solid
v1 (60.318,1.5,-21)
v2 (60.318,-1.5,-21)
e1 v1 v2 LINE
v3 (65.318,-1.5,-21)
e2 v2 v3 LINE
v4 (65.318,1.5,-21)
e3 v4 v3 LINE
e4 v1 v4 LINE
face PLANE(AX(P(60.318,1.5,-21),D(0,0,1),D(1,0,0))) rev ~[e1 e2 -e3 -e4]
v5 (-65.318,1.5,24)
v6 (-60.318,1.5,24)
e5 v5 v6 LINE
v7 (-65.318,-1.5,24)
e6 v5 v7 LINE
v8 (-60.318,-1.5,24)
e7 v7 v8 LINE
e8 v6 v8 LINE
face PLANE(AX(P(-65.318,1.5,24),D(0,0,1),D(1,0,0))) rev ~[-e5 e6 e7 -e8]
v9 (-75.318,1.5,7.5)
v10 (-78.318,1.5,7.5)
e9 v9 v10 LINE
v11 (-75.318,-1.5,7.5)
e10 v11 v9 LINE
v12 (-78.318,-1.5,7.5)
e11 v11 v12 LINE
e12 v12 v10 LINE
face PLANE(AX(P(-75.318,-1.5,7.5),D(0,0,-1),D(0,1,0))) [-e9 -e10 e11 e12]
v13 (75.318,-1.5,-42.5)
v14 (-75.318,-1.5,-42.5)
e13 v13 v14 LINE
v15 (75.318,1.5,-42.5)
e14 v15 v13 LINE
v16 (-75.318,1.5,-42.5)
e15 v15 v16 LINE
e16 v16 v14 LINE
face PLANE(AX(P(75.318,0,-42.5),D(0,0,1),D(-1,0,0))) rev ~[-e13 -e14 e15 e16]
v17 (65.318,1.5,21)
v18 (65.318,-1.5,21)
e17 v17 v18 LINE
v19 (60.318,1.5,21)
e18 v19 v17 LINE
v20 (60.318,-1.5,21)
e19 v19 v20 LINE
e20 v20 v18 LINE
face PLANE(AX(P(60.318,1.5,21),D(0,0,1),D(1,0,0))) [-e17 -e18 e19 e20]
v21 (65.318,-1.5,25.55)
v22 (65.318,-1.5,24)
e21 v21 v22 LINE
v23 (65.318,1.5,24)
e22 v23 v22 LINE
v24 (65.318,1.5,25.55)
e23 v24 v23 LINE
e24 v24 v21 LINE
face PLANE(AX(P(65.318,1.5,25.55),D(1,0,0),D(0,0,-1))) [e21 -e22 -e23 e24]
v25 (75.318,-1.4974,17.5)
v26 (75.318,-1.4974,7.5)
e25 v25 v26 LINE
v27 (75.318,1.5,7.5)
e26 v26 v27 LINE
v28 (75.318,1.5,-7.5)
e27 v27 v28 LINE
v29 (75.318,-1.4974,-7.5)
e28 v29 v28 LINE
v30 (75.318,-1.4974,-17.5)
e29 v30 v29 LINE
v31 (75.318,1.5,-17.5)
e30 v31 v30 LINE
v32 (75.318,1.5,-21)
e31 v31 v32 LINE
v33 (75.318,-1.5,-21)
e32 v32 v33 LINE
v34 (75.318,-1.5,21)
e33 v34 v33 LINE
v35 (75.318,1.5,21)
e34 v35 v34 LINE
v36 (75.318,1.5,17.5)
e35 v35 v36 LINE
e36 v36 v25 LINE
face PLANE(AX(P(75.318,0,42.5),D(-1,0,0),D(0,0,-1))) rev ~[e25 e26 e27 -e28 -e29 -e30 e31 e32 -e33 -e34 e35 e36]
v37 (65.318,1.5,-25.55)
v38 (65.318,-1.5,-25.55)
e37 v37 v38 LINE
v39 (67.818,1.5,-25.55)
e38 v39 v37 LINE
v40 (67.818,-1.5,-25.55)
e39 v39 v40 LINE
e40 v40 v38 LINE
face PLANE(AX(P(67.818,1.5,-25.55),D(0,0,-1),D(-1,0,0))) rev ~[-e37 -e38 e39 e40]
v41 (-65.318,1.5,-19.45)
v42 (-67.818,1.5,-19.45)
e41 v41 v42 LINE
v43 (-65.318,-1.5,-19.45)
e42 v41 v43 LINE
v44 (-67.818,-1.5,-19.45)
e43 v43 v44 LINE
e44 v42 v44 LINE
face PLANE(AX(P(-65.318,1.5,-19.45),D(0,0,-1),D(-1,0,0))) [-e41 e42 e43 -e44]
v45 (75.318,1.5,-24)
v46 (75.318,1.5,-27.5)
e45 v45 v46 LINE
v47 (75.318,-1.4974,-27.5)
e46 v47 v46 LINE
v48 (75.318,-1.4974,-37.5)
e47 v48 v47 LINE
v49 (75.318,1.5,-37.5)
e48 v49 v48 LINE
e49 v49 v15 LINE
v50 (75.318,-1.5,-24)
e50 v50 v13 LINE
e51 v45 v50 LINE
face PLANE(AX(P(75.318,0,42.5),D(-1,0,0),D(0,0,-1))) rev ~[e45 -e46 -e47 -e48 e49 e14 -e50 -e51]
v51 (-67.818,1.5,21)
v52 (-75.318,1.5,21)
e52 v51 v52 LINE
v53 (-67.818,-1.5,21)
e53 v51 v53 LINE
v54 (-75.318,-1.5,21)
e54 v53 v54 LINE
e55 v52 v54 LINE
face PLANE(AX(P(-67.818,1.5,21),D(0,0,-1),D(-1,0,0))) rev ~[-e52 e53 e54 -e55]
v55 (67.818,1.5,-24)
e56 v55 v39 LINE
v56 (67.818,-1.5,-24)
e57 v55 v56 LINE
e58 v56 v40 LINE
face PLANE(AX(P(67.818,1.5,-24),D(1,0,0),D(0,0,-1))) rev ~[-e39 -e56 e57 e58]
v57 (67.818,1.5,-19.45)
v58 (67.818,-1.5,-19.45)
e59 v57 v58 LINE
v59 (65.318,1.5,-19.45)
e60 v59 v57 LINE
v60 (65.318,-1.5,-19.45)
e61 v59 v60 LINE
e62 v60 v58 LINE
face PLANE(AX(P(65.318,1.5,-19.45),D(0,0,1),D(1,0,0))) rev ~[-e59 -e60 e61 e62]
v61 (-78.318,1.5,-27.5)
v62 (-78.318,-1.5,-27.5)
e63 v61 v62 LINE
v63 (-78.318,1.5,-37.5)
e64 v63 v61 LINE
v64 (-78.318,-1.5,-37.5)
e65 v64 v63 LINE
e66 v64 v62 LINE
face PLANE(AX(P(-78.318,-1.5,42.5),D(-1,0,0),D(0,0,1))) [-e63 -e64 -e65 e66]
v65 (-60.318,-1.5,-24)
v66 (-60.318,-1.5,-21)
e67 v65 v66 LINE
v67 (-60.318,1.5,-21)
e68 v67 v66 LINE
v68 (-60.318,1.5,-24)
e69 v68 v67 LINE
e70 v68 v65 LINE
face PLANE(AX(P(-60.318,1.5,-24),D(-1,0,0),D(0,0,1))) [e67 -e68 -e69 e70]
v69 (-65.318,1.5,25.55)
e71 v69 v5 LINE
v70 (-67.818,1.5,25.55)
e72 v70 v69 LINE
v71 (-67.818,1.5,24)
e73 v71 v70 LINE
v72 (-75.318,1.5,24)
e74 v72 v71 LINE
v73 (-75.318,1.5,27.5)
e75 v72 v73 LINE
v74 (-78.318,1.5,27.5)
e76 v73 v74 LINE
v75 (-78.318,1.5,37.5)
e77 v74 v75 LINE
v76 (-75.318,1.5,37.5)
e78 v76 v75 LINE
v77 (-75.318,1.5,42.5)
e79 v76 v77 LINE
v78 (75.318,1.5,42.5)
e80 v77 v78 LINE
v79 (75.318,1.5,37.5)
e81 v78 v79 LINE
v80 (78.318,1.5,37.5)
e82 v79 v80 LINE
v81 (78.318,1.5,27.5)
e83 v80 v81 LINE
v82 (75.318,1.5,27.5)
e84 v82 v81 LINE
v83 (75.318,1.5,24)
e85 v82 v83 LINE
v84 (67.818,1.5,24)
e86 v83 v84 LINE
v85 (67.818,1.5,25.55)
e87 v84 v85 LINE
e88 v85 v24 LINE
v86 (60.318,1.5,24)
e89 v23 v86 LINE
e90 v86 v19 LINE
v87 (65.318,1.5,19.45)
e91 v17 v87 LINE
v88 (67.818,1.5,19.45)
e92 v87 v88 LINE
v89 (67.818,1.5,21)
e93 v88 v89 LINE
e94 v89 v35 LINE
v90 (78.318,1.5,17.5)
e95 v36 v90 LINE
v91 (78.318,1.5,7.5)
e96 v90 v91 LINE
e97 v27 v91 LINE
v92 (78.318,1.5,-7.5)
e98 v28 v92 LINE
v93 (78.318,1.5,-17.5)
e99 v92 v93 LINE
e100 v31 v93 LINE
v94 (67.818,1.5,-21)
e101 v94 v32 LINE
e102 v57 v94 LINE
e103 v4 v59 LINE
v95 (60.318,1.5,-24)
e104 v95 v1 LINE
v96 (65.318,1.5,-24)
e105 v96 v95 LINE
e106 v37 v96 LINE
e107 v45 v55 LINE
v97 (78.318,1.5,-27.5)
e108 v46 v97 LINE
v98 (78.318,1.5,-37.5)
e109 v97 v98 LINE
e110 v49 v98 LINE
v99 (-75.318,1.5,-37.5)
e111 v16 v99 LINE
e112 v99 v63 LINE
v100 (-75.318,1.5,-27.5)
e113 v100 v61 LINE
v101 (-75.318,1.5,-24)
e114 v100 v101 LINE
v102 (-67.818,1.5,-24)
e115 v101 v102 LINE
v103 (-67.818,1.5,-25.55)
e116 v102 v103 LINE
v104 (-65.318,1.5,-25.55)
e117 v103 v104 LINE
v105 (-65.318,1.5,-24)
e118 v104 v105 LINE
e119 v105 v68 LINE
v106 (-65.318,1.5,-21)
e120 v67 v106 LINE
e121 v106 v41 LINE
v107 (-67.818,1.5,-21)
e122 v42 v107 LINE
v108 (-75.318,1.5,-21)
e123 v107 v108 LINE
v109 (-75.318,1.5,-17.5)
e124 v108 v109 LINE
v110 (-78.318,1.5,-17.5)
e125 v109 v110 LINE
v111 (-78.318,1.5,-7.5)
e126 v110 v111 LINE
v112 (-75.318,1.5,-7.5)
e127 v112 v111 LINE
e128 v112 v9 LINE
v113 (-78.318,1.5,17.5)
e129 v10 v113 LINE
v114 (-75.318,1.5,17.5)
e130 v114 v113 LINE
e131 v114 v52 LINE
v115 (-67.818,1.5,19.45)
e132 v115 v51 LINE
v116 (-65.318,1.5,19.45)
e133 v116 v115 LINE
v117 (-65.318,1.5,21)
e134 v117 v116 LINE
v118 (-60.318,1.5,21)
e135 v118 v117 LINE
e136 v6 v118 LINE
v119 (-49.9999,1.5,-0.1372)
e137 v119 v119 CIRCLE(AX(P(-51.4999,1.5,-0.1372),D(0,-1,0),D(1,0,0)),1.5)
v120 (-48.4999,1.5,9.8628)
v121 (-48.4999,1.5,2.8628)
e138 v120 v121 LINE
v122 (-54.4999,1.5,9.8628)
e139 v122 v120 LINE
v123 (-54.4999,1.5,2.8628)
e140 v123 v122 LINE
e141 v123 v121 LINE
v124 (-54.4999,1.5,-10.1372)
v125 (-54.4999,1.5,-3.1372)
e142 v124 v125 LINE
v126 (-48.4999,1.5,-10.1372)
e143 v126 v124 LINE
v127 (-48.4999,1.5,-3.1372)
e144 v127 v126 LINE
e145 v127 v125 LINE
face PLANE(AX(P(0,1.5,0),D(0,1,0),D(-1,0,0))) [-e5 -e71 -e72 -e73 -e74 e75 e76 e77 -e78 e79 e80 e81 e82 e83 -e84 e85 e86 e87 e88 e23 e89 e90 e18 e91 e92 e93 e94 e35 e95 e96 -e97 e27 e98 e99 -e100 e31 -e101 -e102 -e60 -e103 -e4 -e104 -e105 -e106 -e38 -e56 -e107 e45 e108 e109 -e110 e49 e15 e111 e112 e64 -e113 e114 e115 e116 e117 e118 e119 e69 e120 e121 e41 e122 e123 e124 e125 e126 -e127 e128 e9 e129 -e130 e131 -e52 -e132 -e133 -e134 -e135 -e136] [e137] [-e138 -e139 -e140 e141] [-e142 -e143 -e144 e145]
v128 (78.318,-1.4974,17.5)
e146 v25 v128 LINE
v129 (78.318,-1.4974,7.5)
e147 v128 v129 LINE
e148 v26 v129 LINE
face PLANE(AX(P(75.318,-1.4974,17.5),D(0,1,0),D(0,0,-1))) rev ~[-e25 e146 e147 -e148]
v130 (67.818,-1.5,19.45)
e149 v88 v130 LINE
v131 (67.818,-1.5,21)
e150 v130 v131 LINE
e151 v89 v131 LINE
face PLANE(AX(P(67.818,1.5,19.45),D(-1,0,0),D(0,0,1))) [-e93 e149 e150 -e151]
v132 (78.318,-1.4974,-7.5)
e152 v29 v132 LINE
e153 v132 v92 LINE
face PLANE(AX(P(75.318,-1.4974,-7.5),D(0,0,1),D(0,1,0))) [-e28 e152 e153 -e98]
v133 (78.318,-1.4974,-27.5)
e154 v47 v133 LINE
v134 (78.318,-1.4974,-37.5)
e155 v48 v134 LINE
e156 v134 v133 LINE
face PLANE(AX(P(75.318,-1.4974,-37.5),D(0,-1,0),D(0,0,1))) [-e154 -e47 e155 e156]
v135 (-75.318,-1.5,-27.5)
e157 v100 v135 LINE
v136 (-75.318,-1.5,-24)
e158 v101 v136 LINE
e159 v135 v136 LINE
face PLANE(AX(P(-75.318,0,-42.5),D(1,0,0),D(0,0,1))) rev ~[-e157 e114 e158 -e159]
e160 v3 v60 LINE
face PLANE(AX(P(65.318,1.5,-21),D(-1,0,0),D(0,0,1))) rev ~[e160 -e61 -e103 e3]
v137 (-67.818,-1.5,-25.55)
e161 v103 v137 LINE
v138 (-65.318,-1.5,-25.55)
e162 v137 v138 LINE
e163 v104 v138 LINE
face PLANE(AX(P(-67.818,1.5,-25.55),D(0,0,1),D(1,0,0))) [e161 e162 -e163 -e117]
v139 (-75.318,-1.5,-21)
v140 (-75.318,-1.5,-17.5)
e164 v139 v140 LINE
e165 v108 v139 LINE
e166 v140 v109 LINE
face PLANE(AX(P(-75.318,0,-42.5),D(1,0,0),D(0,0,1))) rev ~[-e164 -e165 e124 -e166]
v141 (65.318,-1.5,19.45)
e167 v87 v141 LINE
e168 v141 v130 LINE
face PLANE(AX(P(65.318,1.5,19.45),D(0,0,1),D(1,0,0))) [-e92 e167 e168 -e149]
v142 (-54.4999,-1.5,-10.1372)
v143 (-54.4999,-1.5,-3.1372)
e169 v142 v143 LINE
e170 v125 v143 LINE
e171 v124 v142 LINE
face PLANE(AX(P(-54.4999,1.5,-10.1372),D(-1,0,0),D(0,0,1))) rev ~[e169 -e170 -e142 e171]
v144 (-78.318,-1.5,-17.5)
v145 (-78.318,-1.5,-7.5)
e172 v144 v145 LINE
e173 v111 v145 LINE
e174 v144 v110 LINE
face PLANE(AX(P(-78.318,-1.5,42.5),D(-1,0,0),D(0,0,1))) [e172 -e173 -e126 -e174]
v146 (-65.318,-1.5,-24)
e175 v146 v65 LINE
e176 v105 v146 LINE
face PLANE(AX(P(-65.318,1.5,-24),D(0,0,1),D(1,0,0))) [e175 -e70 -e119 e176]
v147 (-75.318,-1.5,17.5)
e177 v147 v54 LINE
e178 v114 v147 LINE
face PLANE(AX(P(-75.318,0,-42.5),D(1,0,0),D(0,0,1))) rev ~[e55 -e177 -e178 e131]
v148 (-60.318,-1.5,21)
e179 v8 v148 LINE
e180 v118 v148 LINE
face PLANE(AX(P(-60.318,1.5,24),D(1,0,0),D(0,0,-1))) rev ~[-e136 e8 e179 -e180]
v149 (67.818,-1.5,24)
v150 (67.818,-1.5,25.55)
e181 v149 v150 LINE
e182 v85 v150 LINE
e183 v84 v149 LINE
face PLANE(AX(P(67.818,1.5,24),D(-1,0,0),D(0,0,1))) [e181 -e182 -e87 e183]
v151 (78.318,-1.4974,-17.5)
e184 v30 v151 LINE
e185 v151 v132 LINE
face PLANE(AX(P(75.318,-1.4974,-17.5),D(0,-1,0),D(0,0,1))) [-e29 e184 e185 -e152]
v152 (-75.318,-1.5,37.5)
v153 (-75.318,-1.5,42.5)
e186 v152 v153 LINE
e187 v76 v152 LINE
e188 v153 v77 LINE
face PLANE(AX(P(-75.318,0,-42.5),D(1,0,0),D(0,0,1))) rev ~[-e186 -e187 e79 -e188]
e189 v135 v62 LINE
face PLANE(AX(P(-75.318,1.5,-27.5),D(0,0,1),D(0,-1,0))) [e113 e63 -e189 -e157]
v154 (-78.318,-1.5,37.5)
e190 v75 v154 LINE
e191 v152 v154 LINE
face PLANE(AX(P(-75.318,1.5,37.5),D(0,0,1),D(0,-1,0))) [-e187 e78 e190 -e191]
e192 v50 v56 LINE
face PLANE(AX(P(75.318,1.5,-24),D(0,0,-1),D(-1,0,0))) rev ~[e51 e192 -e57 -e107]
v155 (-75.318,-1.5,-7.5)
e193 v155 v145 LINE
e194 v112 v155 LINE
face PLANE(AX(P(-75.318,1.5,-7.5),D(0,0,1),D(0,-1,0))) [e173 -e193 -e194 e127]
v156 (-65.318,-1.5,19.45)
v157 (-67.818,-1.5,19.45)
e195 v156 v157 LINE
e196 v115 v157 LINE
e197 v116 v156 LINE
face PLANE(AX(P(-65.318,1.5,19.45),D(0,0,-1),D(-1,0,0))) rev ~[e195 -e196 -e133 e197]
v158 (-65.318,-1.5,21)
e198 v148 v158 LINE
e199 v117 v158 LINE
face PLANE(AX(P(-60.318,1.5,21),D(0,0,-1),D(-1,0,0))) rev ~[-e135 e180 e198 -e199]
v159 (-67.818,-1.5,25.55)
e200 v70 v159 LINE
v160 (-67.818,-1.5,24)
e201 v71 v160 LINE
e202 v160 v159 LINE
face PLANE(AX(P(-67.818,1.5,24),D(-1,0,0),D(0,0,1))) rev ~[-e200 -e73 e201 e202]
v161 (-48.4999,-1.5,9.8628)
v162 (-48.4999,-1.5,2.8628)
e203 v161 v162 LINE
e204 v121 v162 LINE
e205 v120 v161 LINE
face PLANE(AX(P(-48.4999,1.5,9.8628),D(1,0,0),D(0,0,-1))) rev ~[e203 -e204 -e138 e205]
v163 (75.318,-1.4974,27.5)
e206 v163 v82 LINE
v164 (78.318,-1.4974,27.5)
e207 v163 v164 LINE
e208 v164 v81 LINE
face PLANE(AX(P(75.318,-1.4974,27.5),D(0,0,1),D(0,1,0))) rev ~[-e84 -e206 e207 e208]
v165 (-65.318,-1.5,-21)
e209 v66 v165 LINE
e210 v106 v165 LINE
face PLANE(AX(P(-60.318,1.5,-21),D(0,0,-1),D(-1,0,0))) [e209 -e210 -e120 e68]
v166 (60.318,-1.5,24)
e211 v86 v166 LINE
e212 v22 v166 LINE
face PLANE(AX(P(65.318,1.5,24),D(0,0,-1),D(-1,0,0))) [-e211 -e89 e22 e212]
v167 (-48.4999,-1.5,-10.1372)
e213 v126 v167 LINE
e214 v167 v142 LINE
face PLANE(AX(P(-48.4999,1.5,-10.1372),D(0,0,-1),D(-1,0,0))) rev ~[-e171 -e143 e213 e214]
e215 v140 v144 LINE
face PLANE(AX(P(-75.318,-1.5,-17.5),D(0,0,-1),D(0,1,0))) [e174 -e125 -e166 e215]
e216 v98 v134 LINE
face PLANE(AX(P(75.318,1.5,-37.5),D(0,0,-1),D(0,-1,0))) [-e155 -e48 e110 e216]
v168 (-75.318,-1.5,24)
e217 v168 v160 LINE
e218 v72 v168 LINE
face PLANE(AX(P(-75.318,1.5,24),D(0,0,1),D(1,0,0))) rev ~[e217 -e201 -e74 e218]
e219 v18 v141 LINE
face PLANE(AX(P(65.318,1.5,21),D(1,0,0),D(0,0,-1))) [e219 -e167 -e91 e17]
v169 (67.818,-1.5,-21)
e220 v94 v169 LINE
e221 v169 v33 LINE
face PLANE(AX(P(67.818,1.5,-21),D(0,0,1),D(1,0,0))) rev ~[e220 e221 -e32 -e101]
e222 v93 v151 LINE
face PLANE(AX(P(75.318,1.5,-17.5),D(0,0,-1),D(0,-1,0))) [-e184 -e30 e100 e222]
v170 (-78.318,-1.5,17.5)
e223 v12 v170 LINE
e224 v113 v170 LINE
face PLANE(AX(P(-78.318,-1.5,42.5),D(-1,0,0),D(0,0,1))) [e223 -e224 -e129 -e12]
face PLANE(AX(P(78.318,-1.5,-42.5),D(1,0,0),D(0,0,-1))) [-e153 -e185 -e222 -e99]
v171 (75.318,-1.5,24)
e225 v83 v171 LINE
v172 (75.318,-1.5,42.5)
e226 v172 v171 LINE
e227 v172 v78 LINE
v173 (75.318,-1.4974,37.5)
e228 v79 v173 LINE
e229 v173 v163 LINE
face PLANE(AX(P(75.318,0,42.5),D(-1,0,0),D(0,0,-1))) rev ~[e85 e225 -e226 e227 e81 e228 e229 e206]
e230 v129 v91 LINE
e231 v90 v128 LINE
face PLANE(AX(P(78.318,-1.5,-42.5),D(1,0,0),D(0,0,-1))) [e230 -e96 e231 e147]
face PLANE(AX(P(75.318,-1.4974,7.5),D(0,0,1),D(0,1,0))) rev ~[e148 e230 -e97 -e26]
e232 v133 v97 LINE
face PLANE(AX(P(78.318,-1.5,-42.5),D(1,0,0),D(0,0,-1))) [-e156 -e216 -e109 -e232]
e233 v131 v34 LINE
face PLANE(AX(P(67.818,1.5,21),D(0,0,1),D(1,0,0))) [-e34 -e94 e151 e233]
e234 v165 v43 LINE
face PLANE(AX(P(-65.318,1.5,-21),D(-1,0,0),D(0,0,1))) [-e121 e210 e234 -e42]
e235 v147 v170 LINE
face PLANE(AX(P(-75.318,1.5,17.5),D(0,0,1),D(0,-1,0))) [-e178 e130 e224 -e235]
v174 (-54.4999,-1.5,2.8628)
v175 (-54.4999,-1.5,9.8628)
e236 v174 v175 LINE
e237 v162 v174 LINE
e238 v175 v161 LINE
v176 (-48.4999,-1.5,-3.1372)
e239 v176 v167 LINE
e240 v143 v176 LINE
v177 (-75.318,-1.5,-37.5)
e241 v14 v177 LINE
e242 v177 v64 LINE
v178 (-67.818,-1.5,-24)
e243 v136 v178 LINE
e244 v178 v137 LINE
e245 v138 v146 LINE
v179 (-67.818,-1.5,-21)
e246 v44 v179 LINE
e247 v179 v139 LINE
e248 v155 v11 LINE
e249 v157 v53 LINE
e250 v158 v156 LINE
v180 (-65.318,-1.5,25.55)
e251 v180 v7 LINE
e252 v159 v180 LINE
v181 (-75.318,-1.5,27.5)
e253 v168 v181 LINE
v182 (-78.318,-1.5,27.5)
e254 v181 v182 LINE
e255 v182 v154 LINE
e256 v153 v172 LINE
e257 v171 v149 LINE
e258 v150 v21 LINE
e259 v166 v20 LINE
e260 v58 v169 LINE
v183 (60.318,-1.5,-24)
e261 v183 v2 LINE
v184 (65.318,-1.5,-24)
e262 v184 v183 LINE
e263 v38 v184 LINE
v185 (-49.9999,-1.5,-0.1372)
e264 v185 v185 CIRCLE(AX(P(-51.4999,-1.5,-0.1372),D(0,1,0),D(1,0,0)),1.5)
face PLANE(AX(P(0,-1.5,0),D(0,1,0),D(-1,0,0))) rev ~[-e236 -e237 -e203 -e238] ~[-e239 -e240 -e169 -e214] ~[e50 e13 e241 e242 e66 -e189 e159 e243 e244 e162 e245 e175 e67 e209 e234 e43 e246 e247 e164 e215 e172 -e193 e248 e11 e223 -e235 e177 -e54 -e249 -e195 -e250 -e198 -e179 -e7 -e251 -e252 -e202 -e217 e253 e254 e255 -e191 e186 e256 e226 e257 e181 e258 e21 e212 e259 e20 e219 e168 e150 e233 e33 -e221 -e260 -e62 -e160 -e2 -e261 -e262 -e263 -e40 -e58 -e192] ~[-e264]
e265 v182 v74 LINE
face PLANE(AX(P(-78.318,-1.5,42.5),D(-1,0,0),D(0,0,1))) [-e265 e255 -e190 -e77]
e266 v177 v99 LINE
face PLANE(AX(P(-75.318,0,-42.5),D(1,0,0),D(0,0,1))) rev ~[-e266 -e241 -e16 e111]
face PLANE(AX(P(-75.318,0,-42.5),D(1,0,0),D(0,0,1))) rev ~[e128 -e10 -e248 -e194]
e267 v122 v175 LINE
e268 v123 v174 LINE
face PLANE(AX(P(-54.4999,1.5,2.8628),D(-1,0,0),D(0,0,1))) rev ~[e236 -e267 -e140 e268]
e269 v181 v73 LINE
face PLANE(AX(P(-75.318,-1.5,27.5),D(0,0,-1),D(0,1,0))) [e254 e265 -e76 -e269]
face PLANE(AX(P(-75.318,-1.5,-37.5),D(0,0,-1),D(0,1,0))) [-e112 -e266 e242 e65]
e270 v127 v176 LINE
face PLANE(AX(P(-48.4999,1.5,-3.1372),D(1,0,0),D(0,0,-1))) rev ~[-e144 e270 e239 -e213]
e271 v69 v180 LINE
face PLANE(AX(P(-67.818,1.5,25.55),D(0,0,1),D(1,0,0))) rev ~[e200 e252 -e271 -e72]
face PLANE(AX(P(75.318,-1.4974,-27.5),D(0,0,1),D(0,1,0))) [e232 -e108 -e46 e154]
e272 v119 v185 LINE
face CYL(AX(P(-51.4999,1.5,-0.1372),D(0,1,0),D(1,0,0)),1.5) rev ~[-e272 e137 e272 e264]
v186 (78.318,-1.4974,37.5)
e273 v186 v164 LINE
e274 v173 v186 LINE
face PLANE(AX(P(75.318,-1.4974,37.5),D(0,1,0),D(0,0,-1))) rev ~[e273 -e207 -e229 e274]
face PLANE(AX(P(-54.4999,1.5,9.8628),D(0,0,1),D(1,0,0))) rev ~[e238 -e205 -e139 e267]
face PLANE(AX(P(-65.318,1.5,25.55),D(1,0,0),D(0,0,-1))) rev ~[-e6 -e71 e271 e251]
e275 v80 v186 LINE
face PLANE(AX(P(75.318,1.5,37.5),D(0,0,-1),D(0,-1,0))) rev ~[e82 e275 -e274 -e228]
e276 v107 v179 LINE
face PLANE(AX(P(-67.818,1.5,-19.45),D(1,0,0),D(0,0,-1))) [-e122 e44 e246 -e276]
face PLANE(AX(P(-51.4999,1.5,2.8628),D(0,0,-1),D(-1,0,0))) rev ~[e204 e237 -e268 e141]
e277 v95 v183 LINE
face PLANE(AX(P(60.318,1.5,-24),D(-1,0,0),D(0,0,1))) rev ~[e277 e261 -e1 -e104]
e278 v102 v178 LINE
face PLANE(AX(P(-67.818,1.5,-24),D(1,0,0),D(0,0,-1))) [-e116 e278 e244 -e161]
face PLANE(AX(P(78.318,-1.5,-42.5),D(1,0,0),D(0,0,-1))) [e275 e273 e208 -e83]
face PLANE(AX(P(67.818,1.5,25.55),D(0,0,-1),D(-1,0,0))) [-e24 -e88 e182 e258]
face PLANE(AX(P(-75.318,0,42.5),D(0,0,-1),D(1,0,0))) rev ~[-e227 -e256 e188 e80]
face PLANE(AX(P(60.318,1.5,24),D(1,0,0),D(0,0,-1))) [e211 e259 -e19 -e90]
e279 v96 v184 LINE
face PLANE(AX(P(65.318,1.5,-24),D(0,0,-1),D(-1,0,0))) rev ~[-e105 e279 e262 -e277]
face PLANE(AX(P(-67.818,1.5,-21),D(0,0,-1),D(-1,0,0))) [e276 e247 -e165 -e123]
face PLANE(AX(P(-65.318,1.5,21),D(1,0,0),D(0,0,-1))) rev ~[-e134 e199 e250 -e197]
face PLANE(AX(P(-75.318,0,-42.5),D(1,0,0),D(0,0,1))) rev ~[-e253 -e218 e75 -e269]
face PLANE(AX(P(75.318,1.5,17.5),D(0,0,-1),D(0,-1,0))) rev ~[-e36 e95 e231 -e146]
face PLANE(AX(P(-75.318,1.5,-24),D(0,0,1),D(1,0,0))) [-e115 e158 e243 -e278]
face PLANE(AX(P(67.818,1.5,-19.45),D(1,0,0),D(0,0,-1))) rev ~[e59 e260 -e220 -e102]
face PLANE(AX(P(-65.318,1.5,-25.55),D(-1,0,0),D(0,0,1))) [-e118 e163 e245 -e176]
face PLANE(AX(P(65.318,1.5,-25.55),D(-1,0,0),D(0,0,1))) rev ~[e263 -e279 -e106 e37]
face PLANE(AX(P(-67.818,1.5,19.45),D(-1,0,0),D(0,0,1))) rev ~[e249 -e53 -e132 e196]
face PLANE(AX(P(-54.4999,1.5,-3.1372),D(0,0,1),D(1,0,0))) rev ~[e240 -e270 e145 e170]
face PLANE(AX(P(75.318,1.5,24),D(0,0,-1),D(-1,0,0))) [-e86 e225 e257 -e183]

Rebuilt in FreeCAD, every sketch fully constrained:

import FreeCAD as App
import Part
import Sketcher
Q = App.Units.Quantity

doc = App.newDocument("Part")
body = doc.addObject("PartDesign::Body", "Body")

# Sketch on XZ plane
sketch1 = body.newObject("Sketcher::SketchObject", "Sketch")
sketch1.AttachmentSupport = (doc.getObject("XZ_Plane"), [""])
sketch1.MapMode = "FlatFace"
sketch1.addGeometry([
    Part.LineSegment(App.Vector(-75.318, -42.5, 0), App.Vector(-75.318, 42.5, 0)),
    Part.LineSegment(App.Vector(-75.318, 42.5, 0), App.Vector(75.318, 42.5, 0)),
    Part.LineSegment(App.Vector(75.318, 42.5, 0), App.Vector(75.318, -42.5, 0)),
    Part.LineSegment(App.Vector(75.318, -42.5, 0), App.Vector(-75.318, -42.5, 0)),
], False)
sketch1.addConstraint([
    Sketcher.Constraint("Coincident", 0, 2, 1, 1),
    Sketcher.Constraint("Coincident", 1, 2, 2, 1),
    Sketcher.Constraint("Coincident", 2, 2, 3, 1),
    Sketcher.Constraint("Coincident", 3, 2, 0, 1),
    Sketcher.Constraint("Vertical", 0),
    Sketcher.Constraint("Horizontal", 1),
    Sketcher.Constraint("Vertical", 2),
    Sketcher.Constraint("Horizontal", 3),
    Sketcher.Constraint("Symmetric", 0, 2, 2, 2, -1, 1),
    Sketcher.Constraint("DistanceY", 0, 1, 0, 2, Q("85 mm")),
    Sketcher.Constraint("DistanceX", 1, 1, 1, 2, Q("150.636 mm")),
])
pad1 = body.newObject("PartDesign::Pad", "Pad")
pad1.Profile = sketch1
pad1.Length = 3
pad1.Midplane = True

# Sketch on YZ plane
sketch2 = body.newObject("Sketcher::SketchObject", "Sketch001")
sketch2.AttachmentSupport = (doc.getObject("YZ_Plane"), [""])
sketch2.MapMode = "FlatFace"
sketch2.AttachmentOffset = App.Placement(App.Vector(0, 0, -75.318), App.Rotation())
sketch2.addGeometry([
    Part.LineSegment(App.Vector(1.5, -37.5, 0), App.Vector(-1.5, -37.5, 0)),  # 0
    Part.LineSegment(App.Vector(-1.5, -37.5, 0), App.Vector(-1.5, -27.5, 0)),  # 1
    Part.LineSegment(App.Vector(-1.5, -27.5, 0), App.Vector(1.5, -27.5, 0)),  # 2
    Part.LineSegment(App.Vector(1.5, -27.5, 0), App.Vector(1.5, -37.5, 0)),  # 3
    Part.LineSegment(App.Vector(1.5, 27.5, 0), App.Vector(-1.5, 27.5, 0)),  # 4
    Part.LineSegment(App.Vector(-1.5, 27.5, 0), App.Vector(-1.5, 37.5, 0)),  # 5
    Part.LineSegment(App.Vector(-1.5, 37.5, 0), App.Vector(1.5, 37.5, 0)),  # 6
    Part.LineSegment(App.Vector(1.5, 37.5, 0), App.Vector(1.5, 27.5, 0)),  # 7
    Part.LineSegment(App.Vector(1.5, 7.5, 0), App.Vector(-1.5, 7.5, 0)),  # 8
    Part.LineSegment(App.Vector(-1.5, 7.5, 0), App.Vector(-1.5, 17.5, 0)),  # 9
    Part.LineSegment(App.Vector(-1.5, 17.5, 0), App.Vector(1.5, 17.5, 0)),  # 10
    Part.LineSegment(App.Vector(1.5, 17.5, 0), App.Vector(1.5, 7.5, 0)),  # 11
    Part.LineSegment(App.Vector(1.5, -17.5, 0), App.Vector(-1.5, -17.5, 0)),  # 12
    Part.LineSegment(App.Vector(-1.5, -17.5, 0), App.Vector(-1.5, -7.5, 0)),  # 13
    Part.LineSegment(App.Vector(-1.5, -7.5, 0), App.Vector(1.5, -7.5, 0)),  # 14
    Part.LineSegment(App.Vector(1.5, -7.5, 0), App.Vector(1.5, -17.5, 0)),  # 15
], False)
sketch2.addConstraint([
    Sketcher.Constraint("Coincident", 0, 2, 1, 1),
    Sketcher.Constraint("Coincident", 1, 2, 2, 1),
    Sketcher.Constraint("Coincident", 2, 2, 3, 1),
    Sketcher.Constraint("Coincident", 3, 2, 0, 1),
    Sketcher.Constraint("Coincident", 4, 2, 5, 1),
    Sketcher.Constraint("Coincident", 5, 2, 6, 1),
    Sketcher.Constraint("Coincident", 6, 2, 7, 1),
    Sketcher.Constraint("Coincident", 7, 2, 4, 1),
    Sketcher.Constraint("Coincident", 8, 2, 9, 1),
    Sketcher.Constraint("Coincident", 9, 2, 10, 1),
    Sketcher.Constraint("Coincident", 10, 2, 11, 1),
    Sketcher.Constraint("Coincident", 11, 2, 8, 1),
    Sketcher.Constraint("Coincident", 12, 2, 13, 1),
    Sketcher.Constraint("Coincident", 13, 2, 14, 1),
    Sketcher.Constraint("Coincident", 14, 2, 15, 1),
    Sketcher.Constraint("Coincident", 15, 2, 12, 1),
    Sketcher.Constraint("Horizontal", 0),
    Sketcher.Constraint("Vertical", 1),
    Sketcher.Constraint("Horizontal", 2),
    Sketcher.Constraint("Vertical", 3),
    Sketcher.Constraint("Horizontal", 4),
    Sketcher.Constraint("Vertical", 5),
    Sketcher.Constraint("Horizontal", 6),
    Sketcher.Constraint("Vertical", 7),
    Sketcher.Constraint("Horizontal", 8),
    Sketcher.Constraint("Vertical", 9),
    Sketcher.Constraint("Horizontal", 10),
    Sketcher.Constraint("Vertical", 11),
    Sketcher.Constraint("Horizontal", 12),
    Sketcher.Constraint("Vertical", 13),
    Sketcher.Constraint("Horizontal", 14),
    Sketcher.Constraint("Vertical", 15),
    Sketcher.Constraint("Symmetric", 2, 2, 4, 2, -1, 1),
    Sketcher.Constraint("Symmetric", 0, 2, 6, 2, -1, 1),
    Sketcher.Constraint("Symmetric", 10, 2, 12, 2, -1, 1),
    Sketcher.Constraint("Symmetric", 8, 2, 14, 2, -1, 1),
    Sketcher.Constraint("Vertical", 1, 2, 4, 2),
    Sketcher.Constraint("Vertical", 5, 2, 8, 2),
    Sketcher.Constraint("Vertical", 7, 2, 10, 2),
    Sketcher.Constraint("Equal", 7, 9),
    Sketcher.Constraint("DistanceX", 0, 2, 0, 1, Q("3 mm")),
    Sketcher.Constraint("DistanceY", 1, 1, 1, 2, Q("10 mm")),
    Sketcher.Constraint("DistanceY", 9, 2, 4, 2, Q("10 mm")),
    Sketcher.Constraint("DistanceY", 1, 2, 4, 2, Q("55 mm")),
])
pad2 = body.newObject("PartDesign::Pad", "Pad001")
pad2.Profile = sketch2
pad2.Length = 3
pad2.Reversed = True

# Sketch on YZ plane
sketch3 = body.newObject("Sketcher::SketchObject", "Sketch002")
sketch3.AttachmentSupport = (doc.getObject("YZ_Plane"), [""])
sketch3.MapMode = "FlatFace"
sketch3.AttachmentOffset = App.Placement(App.Vector(0, 0, 75.318), App.Rotation())
sketch3.addGeometry([
    Part.LineSegment(App.Vector(1.5, -37.5, 0), App.Vector(1.5, -27.5, 0)),  # 0
    Part.LineSegment(App.Vector(1.5, -27.5, 0), App.Vector(-1.4974, -27.5, 0)),  # 1
    Part.LineSegment(App.Vector(-1.4974, -27.5, 0), App.Vector(-1.4974, -37.5, 0)),  # 2
    Part.LineSegment(App.Vector(-1.4974, -37.5, 0), App.Vector(1.5, -37.5, 0)),  # 3
    Part.LineSegment(App.Vector(1.5, -17.5, 0), App.Vector(1.5, -7.5, 0)),  # 4
    Part.LineSegment(App.Vector(1.5, -7.5, 0), App.Vector(-1.4974, -7.5, 0)),  # 5
    Part.LineSegment(App.Vector(-1.4974, -7.5, 0), App.Vector(-1.4974, -17.5, 0)),  # 6
    Part.LineSegment(App.Vector(-1.4974, -17.5, 0), App.Vector(1.5, -17.5, 0)),  # 7
    Part.LineSegment(App.Vector(1.5, 7.5, 0), App.Vector(1.5, 17.5, 0)),  # 8
    Part.LineSegment(App.Vector(1.5, 17.5, 0), App.Vector(-1.4974, 17.5, 0)),  # 9
    Part.LineSegment(App.Vector(-1.4974, 17.5, 0), App.Vector(-1.4974, 7.5, 0)),  # 10
    Part.LineSegment(App.Vector(-1.4974, 7.5, 0), App.Vector(1.5, 7.5, 0)),  # 11
    Part.LineSegment(App.Vector(1.5, 27.5, 0), App.Vector(1.5, 37.5, 0)),  # 12
    Part.LineSegment(App.Vector(1.5, 37.5, 0), App.Vector(-1.4974, 37.5, 0)),  # 13
    Part.LineSegment(App.Vector(-1.4974, 37.5, 0), App.Vector(-1.4974, 27.5, 0)),  # 14
    Part.LineSegment(App.Vector(-1.4974, 27.5, 0), App.Vector(1.5, 27.5, 0)),  # 15
], False)
sketch3.addConstraint([
    Sketcher.Constraint("Coincident", 0, 2, 1, 1),
    Sketcher.Constraint("Coincident", 1, 2, 2, 1),
    Sketcher.Constraint("Coincident", 2, 2, 3, 1),
    Sketcher.Constraint("Coincident", 3, 2, 0, 1),
    Sketcher.Constraint("Coincident", 4, 2, 5, 1),
    Sketcher.Constraint("Coincident", 5, 2, 6, 1),
    Sketcher.Constraint("Coincident", 6, 2, 7, 1),
    Sketcher.Constraint("Coincident", 7, 2, 4, 1),
    Sketcher.Constraint("Coincident", 8, 2, 9, 1),
    Sketcher.Constraint("Coincident", 9, 2, 10, 1),
    Sketcher.Constraint("Coincident", 10, 2, 11, 1),
    Sketcher.Constraint("Coincident", 11, 2, 8, 1),
    Sketcher.Constraint("Coincident", 12, 2, 13, 1),
    Sketcher.Constraint("Coincident", 13, 2, 14, 1),
    Sketcher.Constraint("Coincident", 14, 2, 15, 1),
    Sketcher.Constraint("Coincident", 15, 2, 12, 1),
    Sketcher.Constraint("Vertical", 0),
    Sketcher.Constraint("Horizontal", 1),
    Sketcher.Constraint("Vertical", 2),
    Sketcher.Constraint("Horizontal", 3),
    Sketcher.Constraint("Vertical", 4),
    Sketcher.Constraint("Horizontal", 5),
    Sketcher.Constraint("Vertical", 6),
    Sketcher.Constraint("Horizontal", 7),
    Sketcher.Constraint("Vertical", 8),
    Sketcher.Constraint("Horizontal", 9),
    Sketcher.Constraint("Vertical", 10),
    Sketcher.Constraint("Horizontal", 11),
    Sketcher.Constraint("Vertical", 12),
    Sketcher.Constraint("Horizontal", 13),
    Sketcher.Constraint("Vertical", 14),
    Sketcher.Constraint("Horizontal", 15),
    Sketcher.Constraint("Symmetric", 7, 2, 8, 2, -1),
    Sketcher.Constraint("Symmetric", 5, 2, 10, 2, -1),
    Sketcher.Constraint("Symmetric", 3, 2, 12, 2, -1),
    Sketcher.Constraint("Symmetric", 1, 2, 14, 2, -1),
    Sketcher.Constraint("Vertical", 3, 2, 4, 2),
    Sketcher.Constraint("Vertical", 2, 2, 5, 2),
    Sketcher.Constraint("Equal", 2, 4),
    Sketcher.Constraint("DistanceY", 0, 1, 0, 2, Q("10 mm")),
    Sketcher.Constraint("DistanceY", 0, 2, 4, 2, Q("20 mm")),
    Sketcher.Constraint("DistanceY", 4, 2, 8, 2, Q("25 mm")),
    Sketcher.Constraint("DistanceX", -1, 1, 0, 2, Q("1.5 mm")),
    Sketcher.Constraint("DistanceX", 1, 2, 1, 1, Q("2.9974 mm")),
])
pad3 = body.newObject("PartDesign::Pad", "Pad002")
pad3.Profile = sketch3
pad3.Length = 3

# Sketch on XZ plane
sketch4 = body.newObject("Sketcher::SketchObject", "Sketch003")
sketch4.AttachmentSupport = (doc.getObject("XZ_Plane"), [""])
sketch4.MapMode = "FlatFace"
sketch4.AttachmentOffset = App.Placement(App.Vector(0, 0, -1.5), App.Rotation())
sketch4.addGeometry([
    Part.LineSegment(App.Vector(-48.4999, 2.8628, 0), App.Vector(-54.4999, 2.8628, 0)),  # 0
    Part.LineSegment(App.Vector(-54.4999, 2.8628, 0), App.Vector(-54.4999, 9.8628, 0)),  # 1
    Part.LineSegment(App.Vector(-54.4999, 9.8628, 0), App.Vector(-48.4999, 9.8628, 0)),  # 2
    Part.LineSegment(App.Vector(-48.4999, 9.8628, 0), App.Vector(-48.4999, 2.8628, 0)),  # 3
    Part.LineSegment(App.Vector(-54.4999, -3.1372, 0), App.Vector(-48.4999, -3.1372, 0)),  # 4
    Part.LineSegment(App.Vector(-48.4999, -3.1372, 0), App.Vector(-48.4999, -10.1372, 0)),  # 5
    Part.LineSegment(App.Vector(-48.4999, -10.1372, 0), App.Vector(-54.4999, -10.1372, 0)),  # 6
    Part.LineSegment(App.Vector(-54.4999, -10.1372, 0), App.Vector(-54.4999, -3.1372, 0)),  # 7
    Part.Circle(App.Vector(-51.4999, -0.1372, 0), App.Vector(0, 0, 1), 1.5),  # 8
], False)
sketch4.addConstraint([
    Sketcher.Constraint("Coincident", 0, 2, 1, 1),
    Sketcher.Constraint("Coincident", 1, 2, 2, 1),
    Sketcher.Constraint("Coincident", 2, 2, 3, 1),
    Sketcher.Constraint("Coincident", 3, 2, 0, 1),
    Sketcher.Constraint("Coincident", 4, 2, 5, 1),
    Sketcher.Constraint("Coincident", 5, 2, 6, 1),
    Sketcher.Constraint("Coincident", 6, 2, 7, 1),
    Sketcher.Constraint("Coincident", 7, 2, 4, 1),
    Sketcher.Constraint("Horizontal", 0),
    Sketcher.Constraint("Vertical", 1),
    Sketcher.Constraint("Horizontal", 2),
    Sketcher.Constraint("Vertical", 3),
    Sketcher.Constraint("Horizontal", 4),
    Sketcher.Constraint("Vertical", 5),
    Sketcher.Constraint("Horizontal", 6),
    Sketcher.Constraint("Vertical", 7),
    Sketcher.Constraint("Vertical", 3, 2, 4, 2),
    Sketcher.Constraint("Vertical", 1, 2, 6, 2),
    Sketcher.Constraint("Equal", 3, 5),
    Sketcher.Constraint("Diameter", 8, Q("3 mm")),
    Sketcher.Constraint("DistanceX", 0, 2, 8, 3, Q("3 mm")),
    Sketcher.Constraint("DistanceY", 8, 3, 0, 2, Q("3 mm")),
    Sketcher.Constraint("DistanceX", 8, 3, 2, 2, Q("3 mm")),
    Sketcher.Constraint("DistanceY", 4, 2, 8, 3, Q("3 mm")),
    Sketcher.Constraint("DistanceY", 1, 1, 1, 2, Q("7 mm")),
    Sketcher.Constraint("DistanceX", 8, 3, -1, 1, Q("51.5 mm")),
    Sketcher.Constraint("DistanceY", 8, 3, -1, 1, Q("0.1372 mm")),
])
pocket1 = body.newObject("PartDesign::Pocket", "Pocket")
pocket1.Profile = sketch4
pocket1.Length = 3
pocket1.Reversed = True

# Sketch on XZ plane
sketch5 = body.newObject("Sketcher::SketchObject", "Sketch004")
sketch5.AttachmentSupport = (doc.getObject("XZ_Plane"), [""])
sketch5.MapMode = "FlatFace"
sketch5.AttachmentOffset = App.Placement(App.Vector(0, 0, -1.5), App.Rotation())
sketch5.addGeometry([
    Part.LineSegment(App.Vector(67.818, 24, 0), App.Vector(75.318, 24, 0)),  # 0
    Part.LineSegment(App.Vector(75.318, 24, 0), App.Vector(75.318, 21, 0)),  # 1
    Part.LineSegment(App.Vector(75.318, 21, 0), App.Vector(67.818, 21, 0)),  # 2
    Part.LineSegment(App.Vector(67.818, 21, 0), App.Vector(67.818, 19.45, 0)),  # 3
    Part.LineSegment(App.Vector(67.818, 19.45, 0), App.Vector(65.318, 19.45, 0)),  # 4
    Part.LineSegment(App.Vector(65.318, 19.45, 0), App.Vector(65.318, 21, 0)),  # 5
    Part.LineSegment(App.Vector(65.318, 21, 0), App.Vector(60.318, 21, 0)),  # 6
    Part.LineSegment(App.Vector(60.318, 21, 0), App.Vector(60.318, 24, 0)),  # 7
    Part.LineSegment(App.Vector(60.318, 24, 0), App.Vector(65.318, 24, 0)),  # 8
    Part.LineSegment(App.Vector(65.318, 24, 0), App.Vector(65.318, 25.55, 0)),  # 9
    Part.LineSegment(App.Vector(65.318, 25.55, 0), App.Vector(67.818, 25.55, 0)),  # 10
    Part.LineSegment(App.Vector(67.818, 25.55, 0), App.Vector(67.818, 24, 0)),  # 11
    Part.LineSegment(App.Vector(75.318, -21, 0), App.Vector(75.318, -24, 0)),  # 12
    Part.LineSegment(App.Vector(75.318, -24, 0), App.Vector(67.818, -24, 0)),  # 13
    Part.LineSegment(App.Vector(67.818, -24, 0), App.Vector(67.818, -25.55, 0)),  # 14
    Part.LineSegment(App.Vector(67.818, -25.55, 0), App.Vector(65.318, -25.55, 0)),  # 15
    Part.LineSegment(App.Vector(65.318, -25.55, 0), App.Vector(65.318, -24, 0)),  # 16
    Part.LineSegment(App.Vector(65.318, -24, 0), App.Vector(60.318, -24, 0)),  # 17
    Part.LineSegment(App.Vector(60.318, -24, 0), App.Vector(60.318, -21, 0)),  # 18
    Part.LineSegment(App.Vector(60.318, -21, 0), App.Vector(65.318, -21, 0)),  # 19
    Part.LineSegment(App.Vector(65.318, -21, 0), App.Vector(65.318, -19.45, 0)),  # 20
    Part.LineSegment(App.Vector(65.318, -19.45, 0), App.Vector(67.818, -19.45, 0)),  # 21
    Part.LineSegment(App.Vector(67.818, -19.45, 0), App.Vector(67.818, -21, 0)),  # 22
    Part.LineSegment(App.Vector(67.818, -21, 0), App.Vector(75.318, -21, 0)),  # 23
    Part.LineSegment(App.Vector(-75.318, 21, 0), App.Vector(-75.318, 24, 0)),  # 24
    Part.LineSegment(App.Vector(-75.318, 24, 0), App.Vector(-67.818, 24, 0)),  # 25
    Part.LineSegment(App.Vector(-67.818, 24, 0), App.Vector(-67.818, 25.55, 0)),  # 26
    Part.LineSegment(App.Vector(-67.818, 25.55, 0), App.Vector(-65.318, 25.55, 0)),  # 27
    Part.LineSegment(App.Vector(-65.318, 25.55, 0), App.Vector(-65.318, 24, 0)),  # 28
    Part.LineSegment(App.Vector(-65.318, 24, 0), App.Vector(-60.318, 24, 0)),  # 29
    Part.LineSegment(App.Vector(-60.318, 24, 0), App.Vector(-60.318, 21, 0)),  # 30
    Part.LineSegment(App.Vector(-60.318, 21, 0), App.Vector(-65.318, 21, 0)),  # 31
    Part.LineSegment(App.Vector(-65.318, 21, 0), App.Vector(-65.318, 19.45, 0)),  # 32
    Part.LineSegment(App.Vector(-65.318, 19.45, 0), App.Vector(-67.818, 19.45, 0)),  # 33
    Part.LineSegment(App.Vector(-67.818, 19.45, 0), App.Vector(-67.818, 21, 0)),  # 34
    Part.LineSegment(App.Vector(-67.818, 21, 0), App.Vector(-75.318, 21, 0)),  # 35
    Part.LineSegment(App.Vector(-60.318, -21, 0), App.Vector(-60.318, -24, 0)),  # 36
    Part.LineSegment(App.Vector(-60.318, -24, 0), App.Vector(-65.318, -24, 0)),  # 37
    Part.LineSegment(App.Vector(-65.318, -24, 0), App.Vector(-65.318, -25.55, 0)),  # 38
    Part.LineSegment(App.Vector(-65.318, -25.55, 0), App.Vector(-67.818, -25.55, 0)),  # 39
    Part.LineSegment(App.Vector(-67.818, -25.55, 0), App.Vector(-67.818, -24, 0)),  # 40
    Part.LineSegment(App.Vector(-67.818, -24, 0), App.Vector(-75.318, -24, 0)),  # 41
    Part.LineSegment(App.Vector(-75.318, -24, 0), App.Vector(-75.318, -21, 0)),  # 42
    Part.LineSegment(App.Vector(-75.318, -21, 0), App.Vector(-67.818, -21, 0)),  # 43
    Part.LineSegment(App.Vector(-67.818, -21, 0), App.Vector(-67.818, -19.45, 0)),  # 44
    Part.LineSegment(App.Vector(-67.818, -19.45, 0), App.Vector(-65.318, -19.45, 0)),  # 45
    Part.LineSegment(App.Vector(-65.318, -19.45, 0), App.Vector(-65.318, -21, 0)),  # 46
    Part.LineSegment(App.Vector(-65.318, -21, 0), App.Vector(-60.318, -21, 0)),  # 47
], False)
sketch5.addConstraint([
    Sketcher.Constraint("Coincident", 0, 2, 1, 1),
    Sketcher.Constraint("Coincident", 1, 2, 2, 1),
    Sketcher.Constraint("Coincident", 2, 2, 3, 1),
    Sketcher.Constraint("Coincident", 3, 2, 4, 1),
    Sketcher.Constraint("Coincident", 4, 2, 5, 1),
    Sketcher.Constraint("Coincident", 5, 2, 6, 1),
    Sketcher.Constraint("Coincident", 6, 2, 7, 1),
    Sketcher.Constraint("Coincident", 7, 2, 8, 1),
    Sketcher.Constraint("Coincident", 8, 2, 9, 1),
    Sketcher.Constraint("Coincident", 9, 2, 10, 1),
    Sketcher.Constraint("Coincident", 10, 2, 11, 1),
    Sketcher.Constraint("Coincident", 11, 2, 0, 1),
    Sketcher.Constraint("Coincident", 12, 2, 13, 1),
    Sketcher.Constraint("Coincident", 13, 2, 14, 1),
    Sketcher.Constraint("Coincident", 14, 2, 15, 1),
    Sketcher.Constraint("Coincident", 15, 2, 16, 1),
    Sketcher.Constraint("Coincident", 16, 2, 17, 1),
    Sketcher.Constraint("Coincident", 17, 2, 18, 1),
    Sketcher.Constraint("Coincident", 18, 2, 19, 1),
    Sketcher.Constraint("Coincident", 19, 2, 20, 1),
    Sketcher.Constraint("Coincident", 20, 2, 21, 1),
    Sketcher.Constraint("Coincident", 21, 2, 22, 1),
    Sketcher.Constraint("Coincident", 22, 2, 23, 1),
    Sketcher.Constraint("Coincident", 23, 2, 12, 1),
    Sketcher.Constraint("Coincident", 24, 2, 25, 1),
    Sketcher.Constraint("Coincident", 25, 2, 26, 1),
    Sketcher.Constraint("Coincident", 26, 2, 27, 1),
    Sketcher.Constraint("Coincident", 27, 2, 28, 1),
    Sketcher.Constraint("Coincident", 28, 2, 29, 1),
    Sketcher.Constraint("Coincident", 29, 2, 30, 1),
    Sketcher.Constraint("Coincident", 30, 2, 31, 1),
    Sketcher.Constraint("Coincident", 31, 2, 32, 1),
    Sketcher.Constraint("Coincident", 32, 2, 33, 1),
    Sketcher.Constraint("Coincident", 33, 2, 34, 1),
    Sketcher.Constraint("Coincident", 34, 2, 35, 1),
    Sketcher.Constraint("Coincident", 35, 2, 24, 1),
    Sketcher.Constraint("Coincident", 36, 2, 37, 1),
    Sketcher.Constraint("Coincident", 37, 2, 38, 1),
    Sketcher.Constraint("Coincident", 38, 2, 39, 1),
    Sketcher.Constraint("Coincident", 39, 2, 40, 1),
    Sketcher.Constraint("Coincident", 40, 2, 41, 1),
    Sketcher.Constraint("Coincident", 41, 2, 42, 1),
    Sketcher.Constraint("Coincident", 42, 2, 43, 1),
    Sketcher.Constraint("Coincident", 43, 2, 44, 1),
    Sketcher.Constraint("Coincident", 44, 2, 45, 1),
    Sketcher.Constraint("Coincident", 45, 2, 46, 1),
    Sketcher.Constraint("Coincident", 46, 2, 47, 1),
    Sketcher.Constraint("Coincident", 47, 2, 36, 1),
    Sketcher.Constraint("Horizontal", 0),
    Sketcher.Constraint("Vertical", 1),
    Sketcher.Constraint("Horizontal", 2),
    Sketcher.Constraint("Vertical", 3),
    Sketcher.Constraint("Horizontal", 4),
    Sketcher.Constraint("Vertical", 5),
    Sketcher.Constraint("Horizontal", 6),
    Sketcher.Constraint("Vertical", 7),
    Sketcher.Constraint("Horizontal", 8),
    Sketcher.Constraint("Vertical", 9),
    Sketcher.Constraint("Horizontal", 10),
    Sketcher.Constraint("Vertical", 11),
    Sketcher.Constraint("Vertical", 12),
    Sketcher.Constraint("Horizontal", 13),
    Sketcher.Constraint("Vertical", 14),
    Sketcher.Constraint("Horizontal", 15),
    Sketcher.Constraint("Vertical", 16),
    Sketcher.Constraint("Horizontal", 17),
    Sketcher.Constraint("Vertical", 18),
    Sketcher.Constraint("Horizontal", 19),
    Sketcher.Constraint("Vertical", 20),
    Sketcher.Constraint("Horizontal", 21),
    Sketcher.Constraint("Vertical", 22),
    Sketcher.Constraint("Horizontal", 23),
    Sketcher.Constraint("Vertical", 24),
    Sketcher.Constraint("Horizontal", 25),
    Sketcher.Constraint("Vertical", 26),
    Sketcher.Constraint("Horizontal", 27),
    Sketcher.Constraint("Vertical", 28),
    Sketcher.Constraint("Horizontal", 29),
    Sketcher.Constraint("Vertical", 30),
    Sketcher.Constraint("Horizontal", 31),
    Sketcher.Constraint("Vertical", 32),
    Sketcher.Constraint("Horizontal", 33),
    Sketcher.Constraint("Vertical", 34),
    Sketcher.Constraint("Horizontal", 35),
    Sketcher.Constraint("Vertical", 36),
    Sketcher.Constraint("Horizontal", 37),
    Sketcher.Constraint("Vertical", 38),
    Sketcher.Constraint("Horizontal", 39),
    Sketcher.Constraint("Vertical", 40),
    Sketcher.Constraint("Horizontal", 41),
    Sketcher.Constraint("Vertical", 42),
    Sketcher.Constraint("Horizontal", 43),
    Sketcher.Constraint("Vertical", 44),
    Sketcher.Constraint("Horizontal", 45),
    Sketcher.Constraint("Vertical", 46),
    Sketcher.Constraint("Horizontal", 47),
    Sketcher.Constraint("Symmetric", 12, 2, 24, 2, -1, 1),
    Sketcher.Constraint("Symmetric", 14, 2, 26, 2, -1, 1),
    Sketcher.Constraint("Symmetric", 16, 2, 28, 2, -1, 1),
    Sketcher.Constraint("Symmetric", 18, 2, 30, 2, -1, 1),
    Sketcher.Constraint("Symmetric", 20, 2, 32, 2, -1, 1),
    Sketcher.Constraint("Symmetric", 22, 2, 34, 2, -1, 1),
    Sketcher.Constraint("Symmetric", 7, 2, 36, 2, -1, 1),
    Sketcher.Constraint("Symmetric", 9, 2, 38, 2, -1, 1),
    Sketcher.Constraint("Symmetric", 11, 2, 40, 2, -1, 1),
    Sketcher.Constraint("Symmetric", 1, 2, 42, 2, -1, 1),
    Sketcher.Constraint("Symmetric", 3, 2, 44, 2, -1, 1),
    Sketcher.Constraint("Symmetric", 5, 2, 46, 2, -1, 1),
    Sketcher.Constraint("Symmetric", 0, 2, 24, 2, -2),
    Sketcher.Constraint("Symmetric", 10, 2, 26, 2, -2),
    Sketcher.Constraint("Symmetric", 8, 2, 28, 2, -2),
    Sketcher.Constraint("Symmetric", 6, 2, 30, 2, -2),
    Sketcher.Constraint("Symmetric", 4, 2, 32, 2, -2),
    Sketcher.Constraint("Symmetric", 2, 2, 34, 2, -2),
    Sketcher.Constraint("Horizontal", 2, 2, 5, 2),
    Sketcher.Constraint("Horizontal", 0, 2, 7, 2),
    Sketcher.Constraint("Vertical", 5, 2, 8, 2),
    Sketcher.Constraint("Vertical", 3, 2, 10, 2),
    Sketcher.Constraint("Equal", 5, 9),
    Sketcher.Constraint("DistanceY", 1, 2, 1, 1, Q("3 mm")),
    Sketcher.Constraint("DistanceX", 4, 2, 4, 1, Q("2.5 mm")),
    Sketcher.Constraint("DistanceX", 6, 2, 1, 2, Q("15 mm")),
    Sketcher.Constraint("DistanceY", 3, 2, 3, 1, Q("1.55 mm")),
    Sketcher.Constraint("DistanceX", 6, 2, 6, 1, Q("5 mm")),
    Sketcher.Constraint("DistanceY", -1, 1, 0, 2, Q("24 mm")),
    Sketcher.Constraint("DistanceX", -1, 1, 0, 2, Q("75.318 mm")),
])
pocket2 = body.newObject("PartDesign::Pocket", "Pocket001")
pocket2.Profile = sketch5
pocket2.Length = 3
pocket2.Reversed = True

doc.recompute()
